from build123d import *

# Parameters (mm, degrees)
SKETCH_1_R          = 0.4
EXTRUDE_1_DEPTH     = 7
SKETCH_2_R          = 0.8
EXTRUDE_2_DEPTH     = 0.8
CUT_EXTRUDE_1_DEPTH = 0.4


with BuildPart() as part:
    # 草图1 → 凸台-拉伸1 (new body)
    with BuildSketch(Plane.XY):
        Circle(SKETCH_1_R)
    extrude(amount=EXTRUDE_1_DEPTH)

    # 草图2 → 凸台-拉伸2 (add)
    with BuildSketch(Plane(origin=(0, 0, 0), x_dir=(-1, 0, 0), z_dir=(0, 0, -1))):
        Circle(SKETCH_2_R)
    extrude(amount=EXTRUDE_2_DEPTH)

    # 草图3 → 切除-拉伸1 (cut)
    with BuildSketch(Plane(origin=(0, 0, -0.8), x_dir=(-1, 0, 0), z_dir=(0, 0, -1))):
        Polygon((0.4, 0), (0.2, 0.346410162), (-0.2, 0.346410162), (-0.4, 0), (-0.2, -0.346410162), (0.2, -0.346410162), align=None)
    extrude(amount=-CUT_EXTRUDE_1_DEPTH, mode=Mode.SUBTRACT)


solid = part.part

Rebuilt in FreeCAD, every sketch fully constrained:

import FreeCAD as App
import Part
import Sketcher
from FreeCAD import Vector
Q = App.Units.Quantity

doc = App.newDocument("Part")
body = doc.addObject("PartDesign::Body", "Body")

# Sketch on XY plane
sketch1 = body.newObject("Sketcher::SketchObject", "Sketch")
sketch1.AttachmentSupport = (doc.getObject("XY_Plane"), [""])
sketch1.MapMode = "FlatFace"
sketch1.addGeometry(Part.Circle(Vector(0, 0, 0), Vector(0, 0, 1), 0.4), False)
sketch1.addConstraint(Sketcher.Constraint("Coincident", 0, 3, -1, 1))
sketch1.addConstraint(Sketcher.Constraint("Diameter", 0, Q("0.8 mm")))
pad1 = body.newObject("PartDesign::Pad", "Pad")
pad1.Profile = sketch1
pad1.Length = 7

# Sketch on XY plane
sketch2 = body.newObject("Sketcher::SketchObject", "Sketch001")
sketch2.AttachmentSupport = (doc.getObject("XY_Plane"), [""])
sketch2.MapMode = "FlatFace"
sketch2.addGeometry(Part.Circle(Vector(0, 0, 0), Vector(0, 0, 1), 0.8), False)
sketch2.addConstraint(Sketcher.Constraint("Coincident", 0, 3, -1, 1))
sketch2.addConstraint(Sketcher.Constraint("Diameter", 0, Q("1.6 mm")))
pad2 = body.newObject("PartDesign::Pad", "Pad001")
pad2.Profile = sketch2
pad2.Length = 0.8
pad2.Reversed = True

# Sketch on XY plane
sketch3 = body.newObject("Sketcher::SketchObject", "Sketch002")
sketch3.AttachmentSupport = (doc.getObject("XY_Plane"), [""])
sketch3.MapMode = "FlatFace"
sketch3.AttachmentOffset = App.Placement(Vector(0, 0, -0.8), App.Rotation())
sketch3.addGeometry(Part.LineSegment(Vector(-0.4, 0, 0), Vector(-0.2, 0.34641, 0)), False)
sketch3.addGeometry(Part.LineSegment(Vector(-0.2, 0.34641, 0), Vector(0.2, 0.34641, 0)), False)
sketch3.addGeometry(Part.LineSegment(Vector(0.2, 0.34641, 0), Vector(0.4, 0, 0)), False)
sketch3.addGeometry(Part.LineSegment(Vector(0.4, 0, 0), Vector(0.2, -0.34641, 0)), False)
sketch3.addGeometry(Part.LineSegment(Vector(0.2, -0.34641, 0), Vector(-0.2, -0.34641, 0)), False)
sketch3.addGeometry(Part.LineSegment(Vector(-0.2, -0.34641, 0), Vector(-0.4, 0, 0)), False)
sketch3.addConstraint(Sketcher.Constraint("Coincident", 0, 2, 1, 1))
sketch3.addConstraint(Sketcher.Constraint("Coincident", 1, 2, 2, 1))
sketch3.addConstraint(Sketcher.Constraint("Coincident", 2, 2, 3, 1))
sketch3.addConstraint(Sketcher.Constraint("Coincident", 3, 2, 4, 1))
sketch3.addConstraint(Sketcher.Constraint("Coincident", 4, 2, 5, 1))
sketch3.addConstraint(Sketcher.Constraint("Coincident", 5, 2, 0, 1))
sketch3.addConstraint(Sketcher.Constraint("Horizontal", 1))
sketch3.addConstraint(Sketcher.Constraint("Horizontal", 4))
sketch3.addConstraint(Sketcher.Constraint("Symmetric", 0, 2, 3, 2, -1, 1))
sketch3.addConstraint(Sketcher.Constraint("Symmetric", 2, 2, 5, 2, -1, 1))
sketch3.addConstraint(Sketcher.Constraint("PointOnObject", 2, 2, -1))
sketch3.addConstraint(Sketcher.Constraint("Parallel", 2, 5))
sketch3.addConstraint(Sketcher.Constraint("Vertical", 1, 2, 3, 2))
sketch3.addConstraint(Sketcher.Constraint("Angle", 0, Q("60 deg")))
sketch3.addConstraint(Sketcher.Constraint("DistanceX", 1, 1, 1, 2, Q("0.4 mm")))
sketch3.addConstraint(Sketcher.Constraint("Distance", 0, Q("0.4 mm")))
pocket1 = body.newObject("PartDesign::Pocket", "Pocket")
pocket1.Profile = sketch3
pocket1.Length = 0.4
pocket1.Reversed = True

doc.recompute()
